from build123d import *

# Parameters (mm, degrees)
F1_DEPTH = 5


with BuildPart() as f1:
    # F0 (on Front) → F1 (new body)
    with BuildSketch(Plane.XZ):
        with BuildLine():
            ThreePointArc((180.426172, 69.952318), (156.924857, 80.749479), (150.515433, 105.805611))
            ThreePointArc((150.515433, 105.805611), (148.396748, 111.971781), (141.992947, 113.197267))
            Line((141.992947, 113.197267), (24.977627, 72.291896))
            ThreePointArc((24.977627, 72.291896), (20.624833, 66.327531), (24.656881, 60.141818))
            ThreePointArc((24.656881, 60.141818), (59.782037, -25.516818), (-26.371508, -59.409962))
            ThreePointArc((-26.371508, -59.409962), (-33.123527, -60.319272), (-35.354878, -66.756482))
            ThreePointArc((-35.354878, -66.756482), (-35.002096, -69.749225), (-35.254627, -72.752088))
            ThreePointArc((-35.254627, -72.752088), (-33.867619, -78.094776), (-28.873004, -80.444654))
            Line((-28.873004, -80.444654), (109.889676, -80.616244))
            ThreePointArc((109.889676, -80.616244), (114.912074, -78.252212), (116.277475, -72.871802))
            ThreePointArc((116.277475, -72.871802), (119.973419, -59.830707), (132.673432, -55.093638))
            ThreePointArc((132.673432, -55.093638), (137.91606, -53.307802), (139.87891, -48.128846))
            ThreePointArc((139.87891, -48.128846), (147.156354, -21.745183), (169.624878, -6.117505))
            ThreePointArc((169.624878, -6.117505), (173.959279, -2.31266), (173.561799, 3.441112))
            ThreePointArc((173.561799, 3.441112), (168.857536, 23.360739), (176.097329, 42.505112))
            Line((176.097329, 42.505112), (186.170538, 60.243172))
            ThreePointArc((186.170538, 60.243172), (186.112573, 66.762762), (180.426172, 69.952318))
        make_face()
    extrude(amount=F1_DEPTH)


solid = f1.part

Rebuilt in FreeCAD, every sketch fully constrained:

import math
import FreeCAD as App
import Part
import Sketcher

V = App.Vector
Q = App.Units.Quantity

doc = App.newDocument("Part")
params = doc.addObject("Spreadsheet::Sheet", "Params")
for row, (alias, value) in enumerate([
    ("sketch1_radius", "65 mm"),
    ("sketch1_radius2", "14.999999 mm"),
    ("sketch1_radius3", "35 mm"),
    ("sketch1_radius4", "6.499999 mm"),
    ("sketch1_radius5", "6.5 mm"),
    ("pad1_length", "5 mm"),
], start=1):
    params.set(f"A{row}", alias)
    params.set(f"B{row}", "=" + value)
    params.setAlias(f"B{row}", alias)

body = doc.addObject("PartDesign::Body", "Body")

# Sketch on XZ plane
sketch1 = body.newObject("Sketcher::SketchObject", "Sketch")
sketch1.AttachmentSupport = (doc.getObject("XZ_Plane"), [""])
sketch1.MapMode = "FlatFace"
sketch1.addGeometry(Part.ArcOfCircle(Part.Circle(V(180.000001, 100.000001, 0), V(0, 0, 1), 30.050705), math.radians(168.86077), math.radians(270.81258)), False)
sketch1.addGeometry(Part.ArcOfCircle(Part.Circle(V(144.13789, 107.061372, 0), V(0, 0, 1), 6.499999), math.radians(-11.139241), math.radians(109.268245)), False)
sketch1.addGeometry(Part.LineSegment(V(141.992947, 113.197267, 0), V(24.977627, 72.291896, 0)), False)
sketch1.addGeometry(Part.ArcOfCircle(Part.Circle(V(27.122569, 66.156, 0), V(0, 0, 1), 6.5), math.radians(109.268237), math.radians(247.7074)), False)
sketch1.addGeometry(Part.ArcOfCircle(Part.Circle(V(-0.000001, 0, 0), V(0, 0, 1), 65), math.radians(-113.935972), math.radians(67.707401)), False)
sketch1.addGeometry(Part.ArcOfCircle(Part.Circle(V(-29.008659, -65.350957, 0), V(0, 0, 1), 6.499999), math.radians(66.064019), math.radians(192.48797)), False)
sketch1.addGeometry(Part.ArcOfCircle(Part.Circle(V(-49.999996, -70, 0), V(0, 0, 1), 14.999997), math.radians(-10.572091), math.radians(12.487969)), False)
sketch1.addGeometry(Part.ArcOfCircle(Part.Circle(V(-28.864968, -73.944661, 0), V(0, 0, 1), 6.499998), math.radians(169.427894), math.radians(269.929162)), False)
sketch1.addGeometry(Part.LineSegment(V(-28.873004, -80.444654, 0), V(109.889676, -80.616244, 0)), False)
sketch1.addGeometry(Part.ArcOfCircle(Part.Circle(V(109.897713, -74.116249, 0), V(0, 0, 1), 6.5), math.radians(-90.070848), math.radians(11.03761)), False)
sketch1.addGeometry(Part.ArcOfCircle(Part.Circle(V(130.999999, -69.999999, 0), V(0, 0, 1), 14.999999), math.radians(83.594624), math.radians(191.037623)), False)
sketch1.addGeometry(Part.ArcOfCircle(Part.Circle(V(133.398585, -48.634214, 0), V(0, 0, 1), 6.500001), math.radians(-96.405364), math.radians(4.459181)), False)
sketch1.addGeometry(Part.ArcOfCircle(Part.Circle(V(179.999998, -44.999999, 0), V(0, 0, 1), 40.242905), math.radians(104.940298), math.radians(184.459192)), False)
sketch1.addGeometry(Part.ArcOfCircle(Part.Circle(V(167.949098, 0.162762, 0), V(0, 0, 1), 6.5), math.radians(-75.059704), math.radians(30.28898)), False)
sketch1.addGeometry(Part.ArcOfCircle(Part.Circle(V(203.784042, 21.093762, 0), V(0, 0, 1), 35), math.radians(142.283645), math.radians(210.288971)), False)
sketch1.addGeometry(Part.LineSegment(V(176.097329, 42.505112, 0), V(186.170538, 60.243172, 0)), False)
sketch1.addGeometry(Part.ArcOfCircle(Part.Circle(V(180.518354, 63.452972, 0), V(0, 0, 1), 6.5), math.radians(-29.591663), math.radians(90.812586)), False)
sketch1.addConstraint(Sketcher.Constraint("Coincident", 0, 1, 1, 1))
sketch1.addConstraint(Sketcher.Constraint("Coincident", 1, 2, 2, 1))
sketch1.addConstraint(Sketcher.Constraint("Coincident", 2, 2, 3, 1))
sketch1.addConstraint(Sketcher.Constraint("Coincident", 3, 2, 4, 2))
sketch1.addConstraint(Sketcher.Constraint("Coincident", 4, 1, 5, 1))
sketch1.addConstraint(Sketcher.Constraint("Coincident", 5, 2, 6, 2))
sketch1.addConstraint(Sketcher.Constraint("Coincident", 6, 1, 7, 1))
sketch1.addConstraint(Sketcher.Constraint("Coincident", 7, 2, 8, 1))
sketch1.addConstraint(Sketcher.Constraint("Coincident", 8, 2, 9, 1))
sketch1.addConstraint(Sketcher.Constraint("Coincident", 9, 2, 10, 2))
sketch1.addConstraint(Sketcher.Constraint("Coincident", 10, 1, 11, 1))
sketch1.addConstraint(Sketcher.Constraint("Coincident", 11, 2, 12, 2))
sketch1.addConstraint(Sketcher.Constraint("Coincident", 12, 1, 13, 1))
sketch1.addConstraint(Sketcher.Constraint("Coincident", 13, 2, 14, 2))
sketch1.addConstraint(Sketcher.Constraint("Coincident", 14, 1, 15, 1))
sketch1.addConstraint(Sketcher.Constraint("Coincident", 15, 2, 16, 1))
sketch1.addConstraint(Sketcher.Constraint("Coincident", 16, 2, 0, 2))
sketch1.addConstraint(Sketcher.Constraint("Coincident", 4, 3, -1, 1))
sketch1.addConstraint(Sketcher.Constraint("Radius", 4, Q("65 mm")))
sketch1.addConstraint(Sketcher.Constraint("Radius", 10, Q("14.999999 mm")))
sketch1.addConstraint(Sketcher.Constraint("Radius", 14, Q("35 mm")))
sketch1.addConstraint(Sketcher.Constraint("Radius", 1, Q("6.499999 mm")))
sketch1.addConstraint(Sketcher.Constraint("Radius", 3, Q("6.5 mm")))
sketch1.addConstraint(Sketcher.Constraint("Radius", 5, Q("6.499999 mm")))
sketch1.addConstraint(Sketcher.Constraint("Radius", 7, Q("6.499998 mm")))
sketch1.addConstraint(Sketcher.Constraint("Radius", 9, Q("6.5 mm")))
sketch1.addConstraint(Sketcher.Constraint("Radius", 11, Q("6.500001 mm")))
sketch1.addConstraint(Sketcher.Constraint("Radius", 13, Q("6.5 mm")))
sketch1.addConstraint(Sketcher.Constraint("Radius", 16, Q("6.5 mm")))
sketch1.addConstraint(Sketcher.Constraint("DistanceX", -1, 1, 0, 3, Q("180.000001 mm")))
sketch1.addConstraint(Sketcher.Constraint("DistanceY", -1, 1, 0, 3, Q("100.000001 mm")))
sketch1.addConstraint(Sketcher.Constraint("DistanceY", 6, 3, -1, 1, Q("70 mm")))
sketch1.addConstraint(Sketcher.Constraint("DistanceX", -1, 1, 10, 3, Q("130.999999 mm")))
sketch1.addConstraint(Sketcher.Constraint("DistanceY", 10, 3, -1, 1, Q("69.999999 mm")))
sketch1.addConstraint(Sketcher.Constraint("DistanceX", -1, 1, 12, 3, Q("179.999998 mm")))
sketch1.addConstraint(Sketcher.Constraint("DistanceY", 12, 3, -1, 1, Q("44.999999 mm")))
sketch1.addConstraint(Sketcher.Constraint("DistanceY", -1, 1, 3, 3, Q("66.156 mm")))
sketch1.addConstraint(Sketcher.Constraint("Radius", 0, Q("30.050705 mm")))
sketch1.addConstraint(Sketcher.Constraint("Radius", 6, Q("14.999997 mm")))
sketch1.addConstraint(Sketcher.Constraint("Radius", 12, Q("40.242905 mm")))
sketch1.addConstraint(Sketcher.Constraint("DistanceY", 13, 3, 14, 3, Q("20.930999 mm")))
sketch1.addConstraint(Sketcher.Constraint("DistanceY", 13, 2, 14, 1, Q("39.064 mm")))
sketch1.addConstraint(Sketcher.Constraint("DistanceY", 9, 2, -1, 1, Q("72.871802 mm")))
sketch1.addConstraint(Sketcher.Constraint("DistanceX", -1, 1, 13, 2, Q("173.561799 mm")))
sketch1.addConstraint(Sketcher.Constraint("DistanceX", 13, 3, 12, 3, Q("12.050901 mm")))
sketch1.addConstraint(Sketcher.Constraint("DistanceY", 16, 3, 1, 3, Q("43.6084 mm")))
sketch1.addConstraint(Sketcher.Constraint("DistanceY", 7, 3, 4, 1, Q("14.534699 mm")))
sketch1.addConstraint(Sketcher.Constraint("DistanceX", 8, 2, 9, 2, Q("6.387799 mm")))
sketch1.addConstraint(Sketcher.Constraint("DistanceY", 15, 2, 16, 3, Q("3.2098 mm")))
sketch1.addConstraint(Sketcher.Constraint("DistanceY", -1, 1, 1, 3, Q("107.061372 mm")))
sketch1.addConstraint(Sketcher.Constraint("DistanceX", 5, 3, -1, 1, Q("29.008659 mm")))
sketch1.addConstraint(Sketcher.Constraint("DistanceY", 7, 3, -1, 1, Q("73.944661 mm")))
sketch1.addConstraint(Sketcher.Constraint("DistanceY", 9, 3, -1, 1, Q("74.116249 mm")))
sketch1.addConstraint(Sketcher.Constraint("DistanceY", -1, 1, 0, 1, Q("105.805611 mm")))
sketch1.addConstraint(Sketcher.Constraint("DistanceX", -1, 1, 3, 2, Q("24.656881 mm")))
sketch1.addConstraint(Sketcher.Constraint("DistanceX", 5, 2, -1, 1, Q("35.354878 mm")))
sketch1.addConstraint(Sketcher.Constraint("DistanceX", -1, 1, 11, 2, Q("139.87891 mm")))
sketch1.addConstraint(Sketcher.Constraint("DistanceX", -1, 1, 12, 1, Q("169.624878 mm")))
sketch1.addConstraint(Sketcher.Constraint("DistanceX", 2, 2, 1, 2, Q("117.01532 mm")))
sketch1.addConstraint(Sketcher.Constraint("DistanceY", 3, 2, 1, 2, Q("53.055449 mm")))
sketch1.addConstraint(Sketcher.Constraint("DistanceX", 5, 2, 6, 1, Q("0.100251 mm")))
sketch1.addConstraint(Sketcher.Constraint("DistanceY", 10, 3, 10, 1, Q("14.906361 mm")))
sketch1.addConstraint(Sketcher.Constraint("DistanceX", 16, 2, 16, 3, Q("0.092182 mm")))
sketch1.addConstraint(Sketcher.Constraint("Distance", 8, Q("138.762786 mm")))
sketch1.setExpression("Constraints[18]", "Params.sketch1_radius")
sketch1.setExpression("Constraints[19]", "Params.sketch1_radius2")
sketch1.setExpression("Constraints[20]", "Params.sketch1_radius3")
sketch1.setExpression("Constraints[21]", "Params.sketch1_radius4")
sketch1.setExpression("Constraints[22]", "Params.sketch1_radius5")
pad1 = body.newObject("PartDesign::Pad", "Pad")
pad1.Profile = sketch1
pad1.setExpression("Length", "Params.pad1_length")

doc.recompute()
